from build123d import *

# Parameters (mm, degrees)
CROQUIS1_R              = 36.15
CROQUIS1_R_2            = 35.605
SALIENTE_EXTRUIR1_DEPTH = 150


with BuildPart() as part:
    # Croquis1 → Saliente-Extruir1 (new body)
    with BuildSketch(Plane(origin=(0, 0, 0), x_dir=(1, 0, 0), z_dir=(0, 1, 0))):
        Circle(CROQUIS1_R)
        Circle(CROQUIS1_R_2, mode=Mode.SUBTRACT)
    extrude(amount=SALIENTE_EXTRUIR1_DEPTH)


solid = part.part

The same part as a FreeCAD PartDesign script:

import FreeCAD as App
import Part
import Sketcher

V = App.Vector

doc = App.newDocument("Part")
body = doc.addObject("PartDesign::Body", "Body")

sketch1 = doc.addObject("Sketcher::SketchObject", "Sketch")
body.addObject(sketch1)
sketch1.AttachmentSupport = (doc.XZ_Plane, [""])
sketch1.MapMode = "FlatFace"
sketch1.addGeometry([
    Part.Circle(V(0, 0, 0), V(0, 0, 1), 36),
    Part.Circle(V(0, 0, 0), V(0, 0, 1), 36),
], False)
sketch1.addConstraint([
    Sketcher.Constraint("Coincident", 0, 3, -1, 1),
    Sketcher.Constraint("Coincident", 1, 3, -1, 1),
    Sketcher.Constraint("Diameter", 0, 72.3),
    Sketcher.Constraint("Diameter", 1, 71.21),
])
pad1 = doc.addObject("PartDesign::Pad", "Pad")
body.addObject(pad1)
pad1.Profile = sketch1
pad1.Length = 150
pad1.Reversed = True

doc.recompute()
